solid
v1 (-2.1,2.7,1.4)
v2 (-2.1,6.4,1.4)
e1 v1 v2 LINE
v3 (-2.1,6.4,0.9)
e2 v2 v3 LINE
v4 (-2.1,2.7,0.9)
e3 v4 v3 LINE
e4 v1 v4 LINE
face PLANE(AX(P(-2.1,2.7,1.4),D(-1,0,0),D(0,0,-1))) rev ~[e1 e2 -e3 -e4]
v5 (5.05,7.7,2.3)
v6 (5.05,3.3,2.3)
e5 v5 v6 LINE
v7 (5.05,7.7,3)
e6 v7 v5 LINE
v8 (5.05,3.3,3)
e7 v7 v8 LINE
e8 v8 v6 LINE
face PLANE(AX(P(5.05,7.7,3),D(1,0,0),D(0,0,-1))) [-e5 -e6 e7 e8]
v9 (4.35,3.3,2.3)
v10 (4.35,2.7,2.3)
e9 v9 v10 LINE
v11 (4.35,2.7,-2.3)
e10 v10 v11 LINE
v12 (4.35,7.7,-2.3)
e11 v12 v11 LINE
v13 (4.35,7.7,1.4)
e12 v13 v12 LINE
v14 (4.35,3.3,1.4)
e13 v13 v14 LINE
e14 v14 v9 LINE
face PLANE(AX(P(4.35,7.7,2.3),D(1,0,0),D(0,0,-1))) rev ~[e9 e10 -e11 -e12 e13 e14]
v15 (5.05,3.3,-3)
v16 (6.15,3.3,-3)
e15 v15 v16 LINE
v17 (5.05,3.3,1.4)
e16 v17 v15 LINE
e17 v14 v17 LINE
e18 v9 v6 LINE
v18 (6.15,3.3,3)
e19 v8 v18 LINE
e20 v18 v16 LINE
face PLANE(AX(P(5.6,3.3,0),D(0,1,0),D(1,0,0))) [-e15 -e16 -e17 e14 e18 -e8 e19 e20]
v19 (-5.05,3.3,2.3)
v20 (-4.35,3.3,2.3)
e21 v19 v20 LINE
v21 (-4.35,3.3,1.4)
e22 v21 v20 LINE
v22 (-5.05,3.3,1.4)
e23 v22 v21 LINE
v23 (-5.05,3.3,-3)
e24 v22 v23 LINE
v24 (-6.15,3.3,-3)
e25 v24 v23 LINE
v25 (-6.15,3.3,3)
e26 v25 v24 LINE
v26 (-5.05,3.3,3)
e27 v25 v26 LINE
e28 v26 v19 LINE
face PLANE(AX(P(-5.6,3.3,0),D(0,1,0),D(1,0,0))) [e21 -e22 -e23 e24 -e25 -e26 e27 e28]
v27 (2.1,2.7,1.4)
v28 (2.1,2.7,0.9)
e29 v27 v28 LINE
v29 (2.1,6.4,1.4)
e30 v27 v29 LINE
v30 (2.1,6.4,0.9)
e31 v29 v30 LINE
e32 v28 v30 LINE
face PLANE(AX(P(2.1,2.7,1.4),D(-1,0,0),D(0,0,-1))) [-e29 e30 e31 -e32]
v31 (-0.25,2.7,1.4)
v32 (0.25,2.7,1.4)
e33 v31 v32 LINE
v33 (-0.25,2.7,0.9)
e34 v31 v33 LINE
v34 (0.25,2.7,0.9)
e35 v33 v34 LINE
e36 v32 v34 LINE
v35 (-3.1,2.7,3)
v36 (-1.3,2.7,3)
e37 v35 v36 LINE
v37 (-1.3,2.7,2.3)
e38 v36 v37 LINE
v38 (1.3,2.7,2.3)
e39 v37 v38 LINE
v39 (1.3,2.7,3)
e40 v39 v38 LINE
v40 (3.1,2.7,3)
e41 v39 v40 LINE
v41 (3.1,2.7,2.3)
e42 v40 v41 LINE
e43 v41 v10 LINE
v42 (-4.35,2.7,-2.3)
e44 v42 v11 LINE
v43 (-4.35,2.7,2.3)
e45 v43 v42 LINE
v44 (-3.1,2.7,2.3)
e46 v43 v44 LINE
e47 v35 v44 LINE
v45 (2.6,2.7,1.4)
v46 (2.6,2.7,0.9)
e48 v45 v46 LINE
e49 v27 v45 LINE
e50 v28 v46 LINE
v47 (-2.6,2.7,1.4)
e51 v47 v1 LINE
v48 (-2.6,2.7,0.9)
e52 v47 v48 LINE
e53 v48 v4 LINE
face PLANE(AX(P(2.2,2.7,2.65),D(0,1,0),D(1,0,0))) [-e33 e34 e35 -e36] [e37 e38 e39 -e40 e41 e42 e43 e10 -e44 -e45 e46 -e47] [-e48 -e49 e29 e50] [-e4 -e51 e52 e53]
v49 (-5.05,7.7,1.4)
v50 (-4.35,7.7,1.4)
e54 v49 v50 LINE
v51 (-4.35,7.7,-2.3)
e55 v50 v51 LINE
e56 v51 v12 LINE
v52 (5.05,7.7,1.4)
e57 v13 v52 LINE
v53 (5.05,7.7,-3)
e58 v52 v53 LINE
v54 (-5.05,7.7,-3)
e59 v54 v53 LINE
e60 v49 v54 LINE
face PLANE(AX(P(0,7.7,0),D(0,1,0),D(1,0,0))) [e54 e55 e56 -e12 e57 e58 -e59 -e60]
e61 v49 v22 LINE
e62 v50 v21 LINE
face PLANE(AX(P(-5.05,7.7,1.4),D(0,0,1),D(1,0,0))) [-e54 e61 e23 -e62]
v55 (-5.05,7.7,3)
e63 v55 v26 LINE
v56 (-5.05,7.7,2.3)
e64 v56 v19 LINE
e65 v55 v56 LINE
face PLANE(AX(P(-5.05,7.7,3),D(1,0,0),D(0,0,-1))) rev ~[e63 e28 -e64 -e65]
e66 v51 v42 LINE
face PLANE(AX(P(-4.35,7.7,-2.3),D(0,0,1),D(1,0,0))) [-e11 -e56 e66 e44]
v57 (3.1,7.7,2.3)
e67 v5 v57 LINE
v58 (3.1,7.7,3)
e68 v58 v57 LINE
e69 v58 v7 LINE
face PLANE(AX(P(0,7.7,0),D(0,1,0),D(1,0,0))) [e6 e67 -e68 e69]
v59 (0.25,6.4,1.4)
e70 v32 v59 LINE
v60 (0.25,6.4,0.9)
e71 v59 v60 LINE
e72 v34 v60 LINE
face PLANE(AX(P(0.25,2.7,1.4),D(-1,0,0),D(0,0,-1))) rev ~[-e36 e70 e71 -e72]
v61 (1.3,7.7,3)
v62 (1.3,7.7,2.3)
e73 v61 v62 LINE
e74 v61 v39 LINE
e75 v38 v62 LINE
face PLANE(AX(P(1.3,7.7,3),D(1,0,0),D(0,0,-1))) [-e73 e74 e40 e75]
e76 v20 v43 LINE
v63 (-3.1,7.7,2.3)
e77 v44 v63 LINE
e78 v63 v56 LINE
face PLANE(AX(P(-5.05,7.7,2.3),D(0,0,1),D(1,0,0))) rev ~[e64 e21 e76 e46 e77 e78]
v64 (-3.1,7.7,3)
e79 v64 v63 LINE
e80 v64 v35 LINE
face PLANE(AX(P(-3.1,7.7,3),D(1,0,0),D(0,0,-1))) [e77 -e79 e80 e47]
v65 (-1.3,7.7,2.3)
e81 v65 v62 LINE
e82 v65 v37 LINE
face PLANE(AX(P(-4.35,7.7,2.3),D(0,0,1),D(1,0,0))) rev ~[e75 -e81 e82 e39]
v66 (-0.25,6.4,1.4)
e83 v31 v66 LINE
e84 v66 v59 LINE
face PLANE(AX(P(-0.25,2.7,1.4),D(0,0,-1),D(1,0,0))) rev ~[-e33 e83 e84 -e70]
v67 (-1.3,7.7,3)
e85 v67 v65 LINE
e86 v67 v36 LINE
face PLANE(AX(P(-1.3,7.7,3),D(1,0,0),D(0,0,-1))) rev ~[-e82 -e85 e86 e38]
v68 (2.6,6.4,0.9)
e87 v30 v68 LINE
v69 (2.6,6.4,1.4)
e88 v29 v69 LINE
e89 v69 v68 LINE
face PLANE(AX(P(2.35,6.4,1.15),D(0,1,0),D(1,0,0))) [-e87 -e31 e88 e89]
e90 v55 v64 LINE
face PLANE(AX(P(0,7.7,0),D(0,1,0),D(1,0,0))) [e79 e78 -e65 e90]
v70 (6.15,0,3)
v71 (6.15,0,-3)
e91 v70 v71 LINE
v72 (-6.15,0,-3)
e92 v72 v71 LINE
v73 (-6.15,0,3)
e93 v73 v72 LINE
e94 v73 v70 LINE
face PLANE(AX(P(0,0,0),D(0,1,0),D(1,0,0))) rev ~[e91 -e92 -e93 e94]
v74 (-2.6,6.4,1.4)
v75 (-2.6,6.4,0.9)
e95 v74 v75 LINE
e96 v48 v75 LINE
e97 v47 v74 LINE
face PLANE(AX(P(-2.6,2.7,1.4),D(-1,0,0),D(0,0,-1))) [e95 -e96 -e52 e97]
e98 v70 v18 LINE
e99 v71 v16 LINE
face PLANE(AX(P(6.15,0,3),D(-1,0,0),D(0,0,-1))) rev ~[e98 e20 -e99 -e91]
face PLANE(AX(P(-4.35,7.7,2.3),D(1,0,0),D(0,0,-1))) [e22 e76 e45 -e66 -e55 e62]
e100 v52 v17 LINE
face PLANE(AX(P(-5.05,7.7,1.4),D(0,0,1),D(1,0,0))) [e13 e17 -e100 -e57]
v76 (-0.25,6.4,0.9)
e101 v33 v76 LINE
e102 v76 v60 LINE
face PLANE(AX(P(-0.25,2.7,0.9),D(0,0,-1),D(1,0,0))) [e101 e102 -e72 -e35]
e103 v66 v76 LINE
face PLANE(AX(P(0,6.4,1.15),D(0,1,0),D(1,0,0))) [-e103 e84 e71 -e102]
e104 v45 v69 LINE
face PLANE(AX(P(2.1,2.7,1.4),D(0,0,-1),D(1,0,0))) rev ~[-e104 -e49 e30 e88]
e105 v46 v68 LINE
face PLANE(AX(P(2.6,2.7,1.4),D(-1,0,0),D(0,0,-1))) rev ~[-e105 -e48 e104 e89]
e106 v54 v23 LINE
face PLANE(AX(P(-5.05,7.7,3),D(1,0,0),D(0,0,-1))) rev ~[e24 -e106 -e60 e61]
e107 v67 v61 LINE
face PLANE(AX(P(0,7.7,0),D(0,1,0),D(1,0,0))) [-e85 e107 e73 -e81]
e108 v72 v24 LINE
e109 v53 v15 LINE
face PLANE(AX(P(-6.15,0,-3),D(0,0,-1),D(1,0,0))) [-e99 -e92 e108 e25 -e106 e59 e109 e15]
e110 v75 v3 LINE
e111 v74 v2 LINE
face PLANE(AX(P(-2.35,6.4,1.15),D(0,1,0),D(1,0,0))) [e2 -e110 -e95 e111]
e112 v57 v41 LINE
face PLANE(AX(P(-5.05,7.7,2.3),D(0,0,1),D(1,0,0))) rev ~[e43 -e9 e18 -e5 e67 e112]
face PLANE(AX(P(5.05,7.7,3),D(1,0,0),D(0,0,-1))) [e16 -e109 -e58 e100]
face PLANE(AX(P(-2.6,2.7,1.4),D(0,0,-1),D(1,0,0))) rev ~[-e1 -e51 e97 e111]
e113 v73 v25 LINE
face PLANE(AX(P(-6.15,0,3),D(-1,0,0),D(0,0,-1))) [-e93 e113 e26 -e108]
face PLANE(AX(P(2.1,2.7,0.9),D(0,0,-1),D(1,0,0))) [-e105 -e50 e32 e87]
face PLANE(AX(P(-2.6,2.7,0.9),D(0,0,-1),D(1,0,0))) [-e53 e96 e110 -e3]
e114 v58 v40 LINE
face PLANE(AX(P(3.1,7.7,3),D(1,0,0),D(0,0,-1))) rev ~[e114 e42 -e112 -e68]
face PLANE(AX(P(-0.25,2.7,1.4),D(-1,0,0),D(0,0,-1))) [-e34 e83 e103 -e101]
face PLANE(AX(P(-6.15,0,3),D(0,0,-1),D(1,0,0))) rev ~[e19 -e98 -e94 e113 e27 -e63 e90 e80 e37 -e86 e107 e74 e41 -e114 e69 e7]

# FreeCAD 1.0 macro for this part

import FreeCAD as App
import Part
import Sketcher
from FreeCAD import Vector


def add_polygon(sketch, points):
    """Adds a closed chain of lines whose ends are joined by coincident constraints."""
    first, n = sketch.GeometryCount, len(points)
    for a, b in zip(points, points[1:] + points[:1]):
        sketch.addGeometry(Part.LineSegment(App.Vector(*a, 0), App.Vector(*b, 0)), False)
    for i in range(n):
        sketch.addConstraint(Sketcher.Constraint("Coincident", first + i, 2, first + (i + 1) % n, 1))

doc = App.newDocument("Part")
body = doc.addObject("PartDesign::Body", "Body")

sketch1 = doc.addObject("Sketcher::SketchObject", "Sketch")
body.addObject(sketch1)
sketch1.AttachmentSupport = (doc.XZ_Plane, [""])
sketch1.MapMode = "FlatFace"
add_polygon(sketch1, [(-6.15, -3), (-6.15, 3), (6.15, 3), (6.15, -3)])
sketch1.addConstraint(Sketcher.Constraint("Vertical", 0))
sketch1.addConstraint(Sketcher.Constraint("Horizontal", 1))
sketch1.addConstraint(Sketcher.Constraint("Vertical", 2))
sketch1.addConstraint(Sketcher.Constraint("Horizontal", 3))
sketch1.addConstraint(Sketcher.Constraint("Symmetric", 0, 2, 2, 2, -1, 1))
sketch1.addConstraint(Sketcher.Constraint("DistanceY", 0, 1, 0, 2, 6.0))
sketch1.addConstraint(Sketcher.Constraint("DistanceX", 1, 1, 1, 2, 12.3))
pad1 = doc.addObject("PartDesign::Pad", "Pad")
body.addObject(pad1)
pad1.Profile = sketch1
pad1.Length = 7.7
pad1.Reversed = True

sketch2 = doc.addObject("Sketcher::SketchObject", "Sketch001")
body.addObject(sketch2)
sketch2.AttachmentSupport = (doc.XZ_Plane, [""])
sketch2.MapMode = "FlatFace"
sketch2.AttachmentOffset = App.Placement(Vector(0, 0, -7.7), App.Rotation())
add_polygon(sketch2, [(-4.35, -2.3), (-4.35, 2.3), (4.35, 2.3), (4.35, -2.3)])
sketch2.addConstraint(Sketcher.Constraint("Vertical", 0))
sketch2.addConstraint(Sketcher.Constraint("Horizontal", 1))
sketch2.addConstraint(Sketcher.Constraint("Vertical", 2))
sketch2.addConstraint(Sketcher.Constraint("Horizontal", 3))
sketch2.addConstraint(Sketcher.Constraint("Symmetric", 0, 2, 2, 2, -1, 1))
sketch2.addConstraint(Sketcher.Constraint("DistanceX", 1, 1, 1, 2, 8.7))
sketch2.addConstraint(Sketcher.Constraint("DistanceY", 0, 1, 0, 2, 4.6))
pocket1 = doc.addObject("PartDesign::Pocket", "Pocket")
body.addObject(pocket1)
pocket1.Profile = sketch2
pocket1.Length = 5
pocket1.Reversed = True

sketch3 = doc.addObject("Sketcher::SketchObject", "Sketch002")
body.addObject(sketch3)
sketch3.AttachmentSupport = (doc.XZ_Plane, [""])
sketch3.MapMode = "FlatFace"
sketch3.AttachmentOffset = App.Placement(Vector(0, 0, -7.7), App.Rotation())
add_polygon(sketch3, [(-6.15, -3), (-6.15, 3), (-5.05, 3), (-5.05, -3)])
add_polygon(sketch3, [(5.05, -3), (5.05, 3), (6.15, 3), (6.15, -3)])
sketch3.addConstraint(Sketcher.Constraint("Vertical", 0))
sketch3.addConstraint(Sketcher.Constraint("Horizontal", 1))
sketch3.addConstraint(Sketcher.Constraint("Vertical", 2))
sketch3.addConstraint(Sketcher.Constraint("Horizontal", 3))
sketch3.addConstraint(Sketcher.Constraint("Vertical", 4))
sketch3.addConstraint(Sketcher.Constraint("Horizontal", 5))
sketch3.addConstraint(Sketcher.Constraint("Vertical", 6))
sketch3.addConstraint(Sketcher.Constraint("Horizontal", 7))
sketch3.addConstraint(Sketcher.Constraint("Symmetric", 2, 2, 4, 2, -1, 1))
sketch3.addConstraint(Sketcher.Constraint("Symmetric", 0, 2, 6, 2, -1, 1))
sketch3.addConstraint(Sketcher.Constraint("Horizontal", 1, 2, 4, 2))
sketch3.addConstraint(Sketcher.Constraint("DistanceY", 0, 1, 0, 2, 6.0))
sketch3.addConstraint(Sketcher.Constraint("DistanceX", 1, 1, 1, 2, 1.1))
sketch3.addConstraint(Sketcher.Constraint("DistanceX", 1, 2, 4, 2, 10.1))
pocket2 = doc.addObject("PartDesign::Pocket", "Pocket001")
body.addObject(pocket2)
pocket2.Profile = sketch3
pocket2.Length = 4.4
pocket2.Reversed = True

sketch4 = doc.addObject("Sketcher::SketchObject", "Sketch003")
body.addObject(sketch4)
sketch4.AttachmentSupport = (doc.XZ_Plane, [""])
sketch4.MapMode = "FlatFace"
sketch4.AttachmentOffset = App.Placement(Vector(0, 0, -7.7), App.Rotation())
add_polygon(sketch4, [(-3.1, 2.3), (-3.1, 3), (-1.3, 3), (-1.3, 2.3)])
add_polygon(sketch4, [(1.3, 2.3), (1.3, 3), (3.1, 3), (3.1, 2.3)])
sketch4.addConstraint(Sketcher.Constraint("Vertical", 0))
sketch4.addConstraint(Sketcher.Constraint("Horizontal", 1))
sketch4.addConstraint(Sketcher.Constraint("Vertical", 2))
sketch4.addConstraint(Sketcher.Constraint("Horizontal", 3))
sketch4.addConstraint(Sketcher.Constraint("Vertical", 4))
sketch4.addConstraint(Sketcher.Constraint("Horizontal", 5))
sketch4.addConstraint(Sketcher.Constraint("Vertical", 6))
sketch4.addConstraint(Sketcher.Constraint("Horizontal", 7))
sketch4.addConstraint(Sketcher.Constraint("Symmetric", 1, 2, 4, 2, -2))
sketch4.addConstraint(Sketcher.Constraint("Symmetric", 3, 2, 6, 2, -2))
sketch4.addConstraint(Sketcher.Constraint("DistanceX", 1, 1, 1, 2, 1.8))
sketch4.addConstraint(Sketcher.Constraint("DistanceY", 0, 1, 0, 2, 0.7))
sketch4.addConstraint(Sketcher.Constraint("DistanceY", -1, 1, 0, 2, 3.0))
sketch4.addConstraint(Sketcher.Constraint("DistanceX", 0, 2, -1, 1, 3.1))
pocket3 = doc.addObject("PartDesign::Pocket", "Pocket002")
body.addObject(pocket3)
pocket3.Profile = sketch4
pocket3.Length = 5
pocket3.Reversed = True

sketch5 = doc.addObject("Sketcher::SketchObject", "Sketch004")
body.addObject(sketch5)
sketch5.AttachmentSupport = (doc.XZ_Plane, [""])
sketch5.MapMode = "FlatFace"
sketch5.AttachmentOffset = App.Placement(Vector(0, 0, -7.7), App.Rotation())
add_polygon(sketch5, [(-5.05, 1.4), (-5.05, 2.3), (5.05, 2.3), (5.05, 1.4)])
sketch5.addConstraint(Sketcher.Constraint("Vertical", 0))
sketch5.addConstraint(Sketcher.Constraint("Horizontal", 1))
sketch5.addConstraint(Sketcher.Constraint("Vertical", 2))
sketch5.addConstraint(Sketcher.Constraint("Horizontal", 3))
sketch5.addConstraint(Sketcher.Constraint("DistanceX", 1, 1, 1, 2, 10.1))
sketch5.addConstraint(Sketcher.Constraint("DistanceY", 0, 1, 0, 2, 0.9))
sketch5.addConstraint(Sketcher.Constraint("DistanceY", -1, 1, 0, 2, 2.3))
sketch5.addConstraint(Sketcher.Constraint("DistanceX", 0, 2, -1, 1, 5.05))
pocket4 = doc.addObject("PartDesign::Pocket", "Pocket003")
body.addObject(pocket4)
pocket4.Profile = sketch5
pocket4.Length = 4.4
pocket4.Reversed = True

sketch6 = doc.addObject("Sketcher::SketchObject", "Sketch005")
body.addObject(sketch6)
sketch6.AttachmentSupport = (doc.XZ_Plane, [""])
sketch6.MapMode = "FlatFace"
sketch6.AttachmentOffset = App.Placement(Vector(0, 0, -2.7), App.Rotation())
add_polygon(sketch6, [(-0.25, 0.9), (-0.25, 1.4), (0.25, 1.4), (0.25, 0.9)])
add_polygon(sketch6, [(-2.6, 0.9), (-2.6, 1.4), (-2.1, 1.4), (-2.1, 0.9)])
add_polygon(sketch6, [(2.1, 0.9), (2.1, 1.4), (2.6, 1.4), (2.6, 0.9)])
sketch6.addConstraint(Sketcher.Constraint("Vertical", 0))
sketch6.addConstraint(Sketcher.Constraint("Horizontal", 1))
sketch6.addConstraint(Sketcher.Constraint("Vertical", 2))
sketch6.addConstraint(Sketcher.Constraint("Horizontal", 3))
sketch6.addConstraint(Sketcher.Constraint("Vertical", 4))
sketch6.addConstraint(Sketcher.Constraint("Horizontal", 5))
sketch6.addConstraint(Sketcher.Constraint("Vertical", 6))
sketch6.addConstraint(Sketcher.Constraint("Horizontal", 7))
sketch6.addConstraint(Sketcher.Constraint("Vertical", 8))
sketch6.addConstraint(Sketcher.Constraint("Horizontal", 9))
sketch6.addConstraint(Sketcher.Constraint("Vertical", 10))
sketch6.addConstraint(Sketcher.Constraint("Horizontal", 11))
sketch6.addConstraint(Sketcher.Constraint("Symmetric", 5, 2, 8, 2, -2))
sketch6.addConstraint(Sketcher.Constraint("Symmetric", 7, 2, 10, 2, -2))
sketch6.addConstraint(Sketcher.Constraint("Horizontal", 1, 2, 4, 2))
sketch6.addConstraint(Sketcher.Constraint("Horizontal", 3, 2, 6, 2))
sketch6.addConstraint(Sketcher.Constraint("Equal", 3, 5))
sketch6.addConstraint(Sketcher.Constraint("Equal", 11, 0))
sketch6.addConstraint(Sketcher.Constraint("DistanceX", 1, 1, 1, 2, 0.5))
sketch6.addConstraint(Sketcher.Constraint("DistanceY", -1, 1, 0, 2, 1.4))
sketch6.addConstraint(Sketcher.Constraint("DistanceX", 4, 2, -1, 1, 2.6))
sketch6.addConstraint(Sketcher.Constraint("DistanceX", 0, 2, -1, 1, 0.25))
pad2 = doc.addObject("PartDesign::Pad", "Pad001")
body.addObject(pad2)
pad2.Profile = sketch6
pad2.Length = 3.7
pad2.Reversed = True

doc.recompute()
